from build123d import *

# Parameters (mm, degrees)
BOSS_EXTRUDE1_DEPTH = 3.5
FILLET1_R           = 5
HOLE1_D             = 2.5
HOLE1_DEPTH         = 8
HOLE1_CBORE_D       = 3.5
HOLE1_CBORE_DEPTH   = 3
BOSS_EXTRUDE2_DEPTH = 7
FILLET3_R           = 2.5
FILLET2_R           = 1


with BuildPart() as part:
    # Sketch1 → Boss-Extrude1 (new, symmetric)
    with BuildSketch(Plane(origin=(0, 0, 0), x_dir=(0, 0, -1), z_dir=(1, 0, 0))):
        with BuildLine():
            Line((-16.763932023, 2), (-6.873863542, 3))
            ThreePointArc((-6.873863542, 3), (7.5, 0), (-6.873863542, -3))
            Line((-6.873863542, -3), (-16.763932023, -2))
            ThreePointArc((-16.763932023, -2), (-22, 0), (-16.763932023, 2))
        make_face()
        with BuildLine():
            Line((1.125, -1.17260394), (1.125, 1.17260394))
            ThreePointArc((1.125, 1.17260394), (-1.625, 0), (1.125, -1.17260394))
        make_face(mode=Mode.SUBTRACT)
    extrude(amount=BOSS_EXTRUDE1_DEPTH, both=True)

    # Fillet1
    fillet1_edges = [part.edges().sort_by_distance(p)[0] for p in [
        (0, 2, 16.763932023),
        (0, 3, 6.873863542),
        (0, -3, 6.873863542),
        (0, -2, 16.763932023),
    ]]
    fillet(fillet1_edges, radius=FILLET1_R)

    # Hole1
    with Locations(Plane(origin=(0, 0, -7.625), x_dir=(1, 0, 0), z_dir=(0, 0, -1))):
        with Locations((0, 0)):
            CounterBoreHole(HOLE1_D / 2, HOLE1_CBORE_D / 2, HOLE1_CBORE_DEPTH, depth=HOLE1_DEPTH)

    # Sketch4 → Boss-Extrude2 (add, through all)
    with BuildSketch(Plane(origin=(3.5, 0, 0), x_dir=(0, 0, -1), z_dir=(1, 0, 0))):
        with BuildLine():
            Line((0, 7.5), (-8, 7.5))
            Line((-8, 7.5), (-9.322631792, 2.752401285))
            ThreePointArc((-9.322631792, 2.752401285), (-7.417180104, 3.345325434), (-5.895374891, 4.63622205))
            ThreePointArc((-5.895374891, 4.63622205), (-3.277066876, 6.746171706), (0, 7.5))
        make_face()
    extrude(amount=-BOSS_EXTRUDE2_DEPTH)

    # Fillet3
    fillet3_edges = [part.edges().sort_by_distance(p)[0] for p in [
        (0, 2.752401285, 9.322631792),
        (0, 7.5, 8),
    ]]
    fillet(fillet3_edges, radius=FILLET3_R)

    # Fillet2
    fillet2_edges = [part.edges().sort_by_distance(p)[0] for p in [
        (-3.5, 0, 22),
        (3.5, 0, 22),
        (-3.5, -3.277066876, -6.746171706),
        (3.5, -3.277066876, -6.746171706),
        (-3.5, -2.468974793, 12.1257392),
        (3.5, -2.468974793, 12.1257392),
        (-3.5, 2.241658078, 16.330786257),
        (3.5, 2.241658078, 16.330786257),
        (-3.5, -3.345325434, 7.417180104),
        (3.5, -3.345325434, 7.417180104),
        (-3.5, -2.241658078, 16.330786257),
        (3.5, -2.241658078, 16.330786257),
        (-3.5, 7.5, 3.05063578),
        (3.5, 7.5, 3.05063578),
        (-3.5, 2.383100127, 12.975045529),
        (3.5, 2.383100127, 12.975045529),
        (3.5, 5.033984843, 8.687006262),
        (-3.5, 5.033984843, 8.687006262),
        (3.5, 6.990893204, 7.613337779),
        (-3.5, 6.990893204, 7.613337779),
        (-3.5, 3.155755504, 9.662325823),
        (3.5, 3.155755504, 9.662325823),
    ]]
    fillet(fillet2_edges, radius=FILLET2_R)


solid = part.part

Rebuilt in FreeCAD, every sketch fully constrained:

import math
import FreeCAD as App
import Part
import Sketcher
from FreeCAD import Vector
Q = App.Units.Quantity


def edges_at(feature, points):
    """Names of the edges that pass closest to the given points."""
    edges = feature.Shape.Edges
    near = lambda p: min(range(len(edges)), key=lambda i: edges[i].distToShape(Part.Vertex(*p))[0])
    return sorted({f"Edge{near(p) + 1}" for p in points})

doc = App.newDocument("Part")
body = doc.addObject("PartDesign::Body", "Body")

# Sketch on YZ plane
sketch1 = body.newObject("Sketcher::SketchObject", "Sketch")
sketch1.AttachmentSupport = (doc.getObject("YZ_Plane"), [""])
sketch1.MapMode = "FlatFace"
sketch1.addGeometry(Part.LineSegment(Vector(3, 6.9, 0), Vector(2, 16.8, 0)), False)
sketch1.addGeometry(Part.ArcOfCircle(Part.Circle(Vector(0, 19, 0), Vector(0, 0, 1), 3), math.radians(-48), math.radians(228)), False)
sketch1.addGeometry(Part.LineSegment(Vector(-2, 16.8, 0), Vector(-3, 6.9, 0)), False)
sketch1.addGeometry(Part.ArcOfCircle(Part.Circle(Vector(0, 0, 0), Vector(0, 0, 1), 7.5), math.radians(114), math.radians(426)), False)
sketch1.addGeometry(Part.ArcOfCircle(Part.Circle(Vector(0, 0, 0), Vector(0, 0, 1), 1.6), math.radians(-44), math.radians(224)), False)
sketch1.addGeometry(Part.LineSegment(Vector(1.2, -1.1, 0), Vector(-1.2, -1.1, 0)), False)
sketch1.addConstraint(Sketcher.Constraint("Coincident", 0, 2, 1, 1))
sketch1.addConstraint(Sketcher.Constraint("Coincident", 1, 2, 2, 1))
sketch1.addConstraint(Sketcher.Constraint("Coincident", 2, 2, 3, 1))
sketch1.addConstraint(Sketcher.Constraint("Coincident", 3, 2, 0, 1))
sketch1.addConstraint(Sketcher.Constraint("Coincident", 4, 1, 5, 1))
sketch1.addConstraint(Sketcher.Constraint("Coincident", 5, 2, 4, 2))
sketch1.addConstraint(Sketcher.Constraint("Horizontal", 5))
sketch1.addConstraint(Sketcher.Constraint("Coincident", 3, 3, -1, 1))
sketch1.addConstraint(Sketcher.Constraint("Coincident", 4, 3, -1, 1))
sketch1.addConstraint(Sketcher.Constraint("Symmetric", 0, 2, 1, 2, -2))
sketch1.addConstraint(Sketcher.Constraint("Horizontal", 2, 2, 3, 2))
sketch1.addConstraint(Sketcher.Constraint("Radius", 1, Q("3 mm")))
sketch1.addConstraint(Sketcher.Constraint("Radius", 3, Q("7.5 mm")))
sketch1.addConstraint(Sketcher.Constraint("DistanceY", -1, 1, 1, 3, Q("19 mm")))
sketch1.addConstraint(Sketcher.Constraint("DistanceX", -1, 1, 0, 2, Q("2 mm")))
sketch1.addConstraint(Sketcher.Constraint("DistanceX", 2, 2, -1, 1, Q("3 mm")))
sketch1.addConstraint(Sketcher.Constraint("Radius", 4, Q("1.625 mm")))
sketch1.addConstraint(Sketcher.Constraint("DistanceY", 4, 1, -1, 1, Q("1.125 mm")))
pad1 = body.newObject("PartDesign::Pad", "Pad")
pad1.Profile = sketch1
pad1.Length = 7
pad1.Midplane = True
doc.recompute()

fillet = body.newObject("PartDesign::Fillet", "Fillet")
fillet.Base = (pad1, edges_at(pad1, [
    (0, 2, 16.764),
    (0, 3, 6.874),
    (0, -3, 6.874),
    (0, -2, 16.764),
]))
fillet.Radius = 5

# Sketch on XY plane
sketch2 = body.newObject("Sketcher::SketchObject", "Sketch001")
sketch2.AttachmentSupport = (doc.getObject("XY_Plane"), [""])
sketch2.MapMode = "FlatFace"
sketch2.AttachmentOffset = App.Placement(Vector(0, 0, -7.625), App.Rotation())
sketch2.addGeometry(Part.Circle(Vector(0, 0, 0), Vector(0, 0, 1), 1.2), False)
sketch2.addConstraint(Sketcher.Constraint("Coincident", 0, 3, -1, 1))
sketch2.addConstraint(Sketcher.Constraint("Diameter", 0, Q("2.5 mm")))
doc.recompute()
hole = body.newObject("PartDesign::Hole", "Hole")
hole.Profile = sketch2
hole.ThreadType = "None"
hole.Diameter = 2.5
hole.DepthType = "Dimension"
hole.Depth = 8
hole.DrillPoint = "Flat"
hole.HoleCutType = "Counterbore"
hole.HoleCutDiameter = 3.5
hole.HoleCutDepth = 3
hole.Reversed = True

# Sketch on YZ plane
sketch3 = body.newObject("Sketcher::SketchObject", "Sketch002")
sketch3.AttachmentSupport = (doc.getObject("YZ_Plane"), [""])
sketch3.MapMode = "FlatFace"
sketch3.AttachmentOffset = App.Placement(Vector(0, 0, 3.5), App.Rotation())
sketch3.addGeometry(Part.LineSegment(Vector(7.5, 0, 0), Vector(7.5, 8, 0)), False)
sketch3.addGeometry(Part.LineSegment(Vector(7.5, 8, 0), Vector(2.8, 9.3, 0)), False)
sketch3.addGeometry(Part.ArcOfCircle(Part.Circle(Vector(7.7, 9.8, 0), Vector(0, 0, 1), 5), math.radians(-174), math.radians(-128)), False)
sketch3.addGeometry(Part.ArcOfCircle(Part.Circle(Vector(0, 0, 0), Vector(0, 0, 1), 7.5), math.radians(0), math.radians(52)), False)
sketch3.addConstraint(Sketcher.Constraint("Coincident", 0, 2, 1, 1))
sketch3.addConstraint(Sketcher.Constraint("Coincident", 1, 2, 2, 1))
sketch3.addConstraint(Sketcher.Constraint("Tangent", 2, 2, 3, 2))
sketch3.addConstraint(Sketcher.Constraint("Tangent", 3, 1, 0, 1))
sketch3.addConstraint(Sketcher.Constraint("Vertical", 0))
sketch3.addConstraint(Sketcher.Constraint("Coincident", 3, 3, -1, 1))
sketch3.addConstraint(Sketcher.Constraint("Radius", 2, Q("5 mm")))
sketch3.addConstraint(Sketcher.Constraint("Radius", 3, Q("7.5 mm")))
sketch3.addConstraint(Sketcher.Constraint("DistanceY", 0, 1, 0, 2, Q("8 mm")))
sketch3.addConstraint(Sketcher.Constraint("DistanceX", -1, 1, 1, 2, Q("2.752401 mm")))
sketch3.addConstraint(Sketcher.Constraint("DistanceY", -1, 1, 1, 2, Q("9.322632 mm")))
pad2 = body.newObject("PartDesign::Pad", "Pad001")
pad2.Profile = sketch3
pad2.Length = 7
pad2.Reversed = True
doc.recompute()

fillet2 = body.newObject("PartDesign::Fillet", "Fillet001")
fillet2.Base = (pad2, edges_at(pad2, [(0, 2.752, 9.323), (0, 7.5, 8)]))
fillet2.Radius = 2.5
doc.recompute()

fillet3 = body.newObject("PartDesign::Fillet", "Fillet002")
fillet3.Base = (fillet2, edges_at(fillet2, [
    (-3.5, 0, 22),
    (3.5, 0, 22),
    (-3.5, -3.277, -6.746),
    (3.5, -3.277, -6.746),
    (-3.5, -2.469, 12.126),
    (3.5, -2.469, 12.126),
    (-3.5, 2.242, 16.331),
    (3.5, 2.242, 16.331),
    (-3.5, -3.345, 7.417),
    (3.5, -3.345, 7.417),
    (-3.5, -2.242, 16.331),
    (3.5, -2.242, 16.331),
    (-3.5, 7.5, 3.051),
    (3.5, 7.5, 3.051),
    (-3.5, 2.383, 12.975),
    (3.5, 2.383, 12.975),
    (3.5, 5.034, 8.687),
    (-3.5, 5.034, 8.687),
    (3.5, 6.991, 7.613),
    (-3.5, 6.991, 7.613),
    (-3.5, 3.156, 9.662),
    (3.5, 3.156, 9.662),
]))
fillet3.Radius = 1

doc.recompute()
